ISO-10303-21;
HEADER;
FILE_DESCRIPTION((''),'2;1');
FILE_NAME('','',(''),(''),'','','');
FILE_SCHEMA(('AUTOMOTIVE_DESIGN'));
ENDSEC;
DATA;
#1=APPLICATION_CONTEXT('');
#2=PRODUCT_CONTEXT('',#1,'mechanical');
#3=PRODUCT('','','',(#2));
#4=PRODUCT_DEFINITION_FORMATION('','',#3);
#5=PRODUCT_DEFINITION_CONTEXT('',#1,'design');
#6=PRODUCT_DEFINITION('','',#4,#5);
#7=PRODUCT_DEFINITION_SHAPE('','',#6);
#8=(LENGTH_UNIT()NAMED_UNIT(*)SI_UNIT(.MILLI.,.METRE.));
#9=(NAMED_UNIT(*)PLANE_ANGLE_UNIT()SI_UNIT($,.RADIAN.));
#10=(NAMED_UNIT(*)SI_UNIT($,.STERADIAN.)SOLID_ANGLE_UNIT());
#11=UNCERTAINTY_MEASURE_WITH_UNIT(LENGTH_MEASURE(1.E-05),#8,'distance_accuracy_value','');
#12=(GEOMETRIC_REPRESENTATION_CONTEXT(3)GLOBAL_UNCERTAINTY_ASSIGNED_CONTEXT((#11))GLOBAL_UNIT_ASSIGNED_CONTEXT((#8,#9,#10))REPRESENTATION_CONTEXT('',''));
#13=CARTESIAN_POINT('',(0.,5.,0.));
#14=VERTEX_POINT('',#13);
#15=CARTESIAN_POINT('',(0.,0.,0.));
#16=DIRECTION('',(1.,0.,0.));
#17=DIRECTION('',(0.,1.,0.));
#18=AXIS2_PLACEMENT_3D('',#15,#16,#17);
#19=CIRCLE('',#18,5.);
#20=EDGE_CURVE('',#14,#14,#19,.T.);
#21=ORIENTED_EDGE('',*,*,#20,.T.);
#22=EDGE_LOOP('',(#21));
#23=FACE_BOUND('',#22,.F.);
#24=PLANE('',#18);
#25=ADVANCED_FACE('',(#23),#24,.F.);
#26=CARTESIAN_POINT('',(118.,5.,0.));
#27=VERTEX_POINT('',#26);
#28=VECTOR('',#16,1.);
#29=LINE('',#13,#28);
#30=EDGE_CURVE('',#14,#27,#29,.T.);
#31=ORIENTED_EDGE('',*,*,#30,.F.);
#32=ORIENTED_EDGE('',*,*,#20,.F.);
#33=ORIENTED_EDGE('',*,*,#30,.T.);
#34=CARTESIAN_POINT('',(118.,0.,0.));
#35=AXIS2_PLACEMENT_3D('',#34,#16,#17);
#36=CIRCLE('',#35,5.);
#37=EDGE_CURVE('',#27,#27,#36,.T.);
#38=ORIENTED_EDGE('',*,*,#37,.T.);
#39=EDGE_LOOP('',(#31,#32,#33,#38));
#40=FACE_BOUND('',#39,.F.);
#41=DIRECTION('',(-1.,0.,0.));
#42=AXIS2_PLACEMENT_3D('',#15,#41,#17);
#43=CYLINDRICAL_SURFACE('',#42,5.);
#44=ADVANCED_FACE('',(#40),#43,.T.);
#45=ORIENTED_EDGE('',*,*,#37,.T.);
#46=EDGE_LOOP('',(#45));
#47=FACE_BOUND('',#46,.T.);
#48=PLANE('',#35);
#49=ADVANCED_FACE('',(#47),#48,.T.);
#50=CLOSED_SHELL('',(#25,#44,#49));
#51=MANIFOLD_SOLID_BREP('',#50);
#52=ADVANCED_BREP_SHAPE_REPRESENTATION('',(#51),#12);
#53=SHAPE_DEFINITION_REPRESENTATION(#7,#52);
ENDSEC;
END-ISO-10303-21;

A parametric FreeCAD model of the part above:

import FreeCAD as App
import Part
import Sketcher

doc = App.newDocument("Part")
body = doc.addObject("PartDesign::Body", "Body")

# Sketch on YZ plane
sketch1 = body.newObject("Sketcher::SketchObject", "Sketch")
sketch1.AttachmentSupport = (doc.getObject("YZ_Plane"), [""])
sketch1.MapMode = "FlatFace"
sketch1.addGeometry(Part.Circle(App.Vector(0, 0, 0), App.Vector(0, 0, 1), 5), False)
sketch1.addConstraint([
    Sketcher.Constraint("Coincident", 0, 3, -1, 1),
    Sketcher.Constraint("Diameter", 0, 10.0),
])
pad1 = body.newObject("PartDesign::Pad", "Pad")
pad1.Profile = sketch1
pad1.Length = 118

doc.recompute()
